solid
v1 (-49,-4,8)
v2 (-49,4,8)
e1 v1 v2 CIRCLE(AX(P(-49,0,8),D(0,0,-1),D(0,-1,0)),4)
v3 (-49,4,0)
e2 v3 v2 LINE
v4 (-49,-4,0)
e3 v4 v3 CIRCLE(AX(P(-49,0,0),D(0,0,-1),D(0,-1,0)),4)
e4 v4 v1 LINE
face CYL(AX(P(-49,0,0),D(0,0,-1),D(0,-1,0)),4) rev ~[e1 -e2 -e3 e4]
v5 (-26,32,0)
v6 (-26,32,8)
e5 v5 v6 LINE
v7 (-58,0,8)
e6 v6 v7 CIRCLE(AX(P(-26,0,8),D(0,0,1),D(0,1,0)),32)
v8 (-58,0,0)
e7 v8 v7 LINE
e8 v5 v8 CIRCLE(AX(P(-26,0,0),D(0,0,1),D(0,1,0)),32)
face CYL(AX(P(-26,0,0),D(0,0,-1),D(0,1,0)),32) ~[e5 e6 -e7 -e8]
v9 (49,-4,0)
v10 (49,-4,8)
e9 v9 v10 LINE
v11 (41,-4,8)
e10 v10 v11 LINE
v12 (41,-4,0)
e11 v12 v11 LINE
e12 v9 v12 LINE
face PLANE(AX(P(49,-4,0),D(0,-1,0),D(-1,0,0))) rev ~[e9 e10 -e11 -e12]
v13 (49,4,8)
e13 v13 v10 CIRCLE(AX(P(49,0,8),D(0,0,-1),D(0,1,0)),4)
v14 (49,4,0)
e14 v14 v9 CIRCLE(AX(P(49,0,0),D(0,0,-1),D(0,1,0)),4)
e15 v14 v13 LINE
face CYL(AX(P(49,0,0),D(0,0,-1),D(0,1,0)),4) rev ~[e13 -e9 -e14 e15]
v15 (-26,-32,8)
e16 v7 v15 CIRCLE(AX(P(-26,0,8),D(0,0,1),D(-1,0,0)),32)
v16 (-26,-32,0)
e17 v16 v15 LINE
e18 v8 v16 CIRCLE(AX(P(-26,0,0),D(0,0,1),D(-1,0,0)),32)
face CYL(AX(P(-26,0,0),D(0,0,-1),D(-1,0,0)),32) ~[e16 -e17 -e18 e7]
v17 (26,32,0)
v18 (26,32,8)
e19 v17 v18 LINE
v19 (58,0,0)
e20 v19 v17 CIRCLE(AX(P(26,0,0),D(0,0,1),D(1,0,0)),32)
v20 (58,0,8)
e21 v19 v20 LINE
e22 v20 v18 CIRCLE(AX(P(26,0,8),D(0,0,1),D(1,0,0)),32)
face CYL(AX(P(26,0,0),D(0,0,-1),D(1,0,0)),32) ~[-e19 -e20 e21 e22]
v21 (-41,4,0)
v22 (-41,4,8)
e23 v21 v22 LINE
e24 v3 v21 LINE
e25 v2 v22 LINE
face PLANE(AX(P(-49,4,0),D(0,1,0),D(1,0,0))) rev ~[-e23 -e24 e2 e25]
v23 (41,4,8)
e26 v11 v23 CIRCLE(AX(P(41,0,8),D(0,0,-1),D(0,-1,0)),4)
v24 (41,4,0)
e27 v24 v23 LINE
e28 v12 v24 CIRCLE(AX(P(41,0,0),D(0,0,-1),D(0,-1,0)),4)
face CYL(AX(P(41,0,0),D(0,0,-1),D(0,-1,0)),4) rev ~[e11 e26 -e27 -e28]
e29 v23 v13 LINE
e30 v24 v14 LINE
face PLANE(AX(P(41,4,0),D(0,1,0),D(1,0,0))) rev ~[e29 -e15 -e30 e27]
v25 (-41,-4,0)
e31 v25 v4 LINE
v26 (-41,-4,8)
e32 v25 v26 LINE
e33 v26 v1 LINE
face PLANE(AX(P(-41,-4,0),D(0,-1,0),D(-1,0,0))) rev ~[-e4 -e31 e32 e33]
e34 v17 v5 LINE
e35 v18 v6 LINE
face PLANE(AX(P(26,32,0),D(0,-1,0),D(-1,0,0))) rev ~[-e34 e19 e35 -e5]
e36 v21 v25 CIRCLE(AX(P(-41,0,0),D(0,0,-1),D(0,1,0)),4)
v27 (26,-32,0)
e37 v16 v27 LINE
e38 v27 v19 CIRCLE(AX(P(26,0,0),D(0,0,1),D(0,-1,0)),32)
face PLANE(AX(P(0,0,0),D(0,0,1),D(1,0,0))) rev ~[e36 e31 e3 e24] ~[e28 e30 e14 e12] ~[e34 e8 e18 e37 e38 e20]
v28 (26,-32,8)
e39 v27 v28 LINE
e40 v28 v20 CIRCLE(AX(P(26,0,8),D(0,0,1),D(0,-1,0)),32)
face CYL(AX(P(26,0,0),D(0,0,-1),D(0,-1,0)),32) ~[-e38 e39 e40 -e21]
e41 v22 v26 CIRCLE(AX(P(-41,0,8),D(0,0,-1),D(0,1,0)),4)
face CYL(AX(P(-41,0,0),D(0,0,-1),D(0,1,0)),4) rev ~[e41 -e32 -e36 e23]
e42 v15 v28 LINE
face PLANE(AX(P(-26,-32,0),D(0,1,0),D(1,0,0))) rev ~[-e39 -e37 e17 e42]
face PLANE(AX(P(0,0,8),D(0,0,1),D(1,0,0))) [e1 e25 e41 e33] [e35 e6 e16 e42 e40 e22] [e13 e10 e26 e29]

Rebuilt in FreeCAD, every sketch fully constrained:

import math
import FreeCAD as App
import Part
import Sketcher

doc = App.newDocument("Part")
body = doc.addObject("PartDesign::Body", "Body")

sketch1 = body.newObject("Sketcher::SketchObject", "Sketch")
sketch1.AttachmentSupport = (doc.getObject("XY_Plane"), [""])
sketch1.MapMode = "FlatFace"
sketch1.addGeometry(Part.LineSegment(App.Vector(26, 32, 0), App.Vector(-26, 32, 0)), False)
sketch1.addGeometry(Part.ArcOfCircle(Part.Circle(App.Vector(-26, 0, 0), App.Vector(0, 0, 1), 32), math.radians(90), math.radians(180)), False)
sketch1.addGeometry(Part.ArcOfCircle(Part.Circle(App.Vector(-26, 0, 0), App.Vector(0, 0, 1), 32), math.radians(180), math.radians(270)), False)
sketch1.addGeometry(Part.LineSegment(App.Vector(-26, -32, 0), App.Vector(26, -32, 0)), False)
sketch1.addGeometry(Part.ArcOfCircle(Part.Circle(App.Vector(26, 0, 0), App.Vector(0, 0, 1), 32), math.radians(-90), math.radians(0)), False)
sketch1.addGeometry(Part.ArcOfCircle(Part.Circle(App.Vector(26, 0, 0), App.Vector(0, 0, 1), 32), math.radians(0), math.radians(90)), False)
sketch1.addGeometry(Part.LineSegment(App.Vector(-41, -4, 0), App.Vector(-49, -4, 0)), False)
sketch1.addGeometry(Part.ArcOfCircle(Part.Circle(App.Vector(-49, 0, 0), App.Vector(0, 0, 1), 4), math.radians(90), math.radians(270)), False)
sketch1.addGeometry(Part.LineSegment(App.Vector(-49, 4, 0), App.Vector(-41, 4, 0)), False)
sketch1.addGeometry(Part.ArcOfCircle(Part.Circle(App.Vector(-41, 0, 0), App.Vector(0, 0, 1), 4), math.radians(-90), math.radians(90)), False)
sketch1.addGeometry(Part.ArcOfCircle(Part.Circle(App.Vector(49, 0, 0), App.Vector(0, 0, 1), 4), math.radians(-90), math.radians(90)), False)
sketch1.addGeometry(Part.LineSegment(App.Vector(49, -4, 0), App.Vector(41, -4, 0)), False)
sketch1.addGeometry(Part.ArcOfCircle(Part.Circle(App.Vector(41, 0, 0), App.Vector(0, 0, 1), 4), math.radians(90), math.radians(270)), False)
sketch1.addGeometry(Part.LineSegment(App.Vector(41, 4, 0), App.Vector(49, 4, 0)), False)
sketch1.addConstraint(Sketcher.Constraint("Tangent", 0, 2, 1, 1))
sketch1.addConstraint(Sketcher.Constraint("Tangent", 1, 2, 2, 1))
sketch1.addConstraint(Sketcher.Constraint("Tangent", 2, 2, 3, 1))
sketch1.addConstraint(Sketcher.Constraint("Tangent", 3, 2, 4, 1))
sketch1.addConstraint(Sketcher.Constraint("Tangent", 4, 2, 5, 1))
sketch1.addConstraint(Sketcher.Constraint("Tangent", 5, 2, 0, 1))
sketch1.addConstraint(Sketcher.Constraint("Tangent", 6, 2, 7, 2))
sketch1.addConstraint(Sketcher.Constraint("Tangent", 7, 1, 8, 1))
sketch1.addConstraint(Sketcher.Constraint("Tangent", 8, 2, 9, 2))
sketch1.addConstraint(Sketcher.Constraint("Tangent", 9, 1, 6, 1))
sketch1.addConstraint(Sketcher.Constraint("Tangent", 10, 1, 11, 1))
sketch1.addConstraint(Sketcher.Constraint("Tangent", 11, 2, 12, 2))
sketch1.addConstraint(Sketcher.Constraint("Tangent", 12, 1, 13, 1))
sketch1.addConstraint(Sketcher.Constraint("Tangent", 13, 2, 10, 2))
sketch1.addConstraint(Sketcher.Constraint("Horizontal", 0))
sketch1.addConstraint(Sketcher.Constraint("Horizontal", 3))
sketch1.addConstraint(Sketcher.Constraint("Horizontal", 6))
sketch1.addConstraint(Sketcher.Constraint("Horizontal", 8))
sketch1.addConstraint(Sketcher.Constraint("Horizontal", 11))
sketch1.addConstraint(Sketcher.Constraint("Horizontal", 13))
sketch1.addConstraint(Sketcher.Constraint("Equal", 1, 2))
sketch1.addConstraint(Sketcher.Constraint("Equal", 2, 4))
sketch1.addConstraint(Sketcher.Constraint("Equal", 9, 10))
sketch1.addConstraint(Sketcher.Constraint("Symmetric", 1, 3, 4, 3, -1, 1))
sketch1.addConstraint(Sketcher.Constraint("Symmetric", 7, 3, 10, 3, -1, 1))
sketch1.addConstraint(Sketcher.Constraint("Symmetric", 9, 3, 12, 3, -2))
sketch1.addConstraint(Sketcher.Constraint("PointOnObject", 1, 2, -1))
sketch1.addConstraint(Sketcher.Constraint("PointOnObject", 4, 2, -1))
sketch1.addConstraint(Sketcher.Constraint("Radius", 1, 32.0))
sketch1.addConstraint(Sketcher.Constraint("Radius", 7, 4.0))
sketch1.addConstraint(Sketcher.Constraint("DistanceX", 0, 2, 0, 1, 52.0))
sketch1.addConstraint(Sketcher.Constraint("DistanceX", 6, 2, 6, 1, 8.0))
sketch1.addConstraint(Sketcher.Constraint("DistanceX", 7, 3, -1, 1, 49.0))
pad1 = body.newObject("PartDesign::Pad", "Pad")
pad1.Profile = sketch1
pad1.Length = 8

doc.recompute()
